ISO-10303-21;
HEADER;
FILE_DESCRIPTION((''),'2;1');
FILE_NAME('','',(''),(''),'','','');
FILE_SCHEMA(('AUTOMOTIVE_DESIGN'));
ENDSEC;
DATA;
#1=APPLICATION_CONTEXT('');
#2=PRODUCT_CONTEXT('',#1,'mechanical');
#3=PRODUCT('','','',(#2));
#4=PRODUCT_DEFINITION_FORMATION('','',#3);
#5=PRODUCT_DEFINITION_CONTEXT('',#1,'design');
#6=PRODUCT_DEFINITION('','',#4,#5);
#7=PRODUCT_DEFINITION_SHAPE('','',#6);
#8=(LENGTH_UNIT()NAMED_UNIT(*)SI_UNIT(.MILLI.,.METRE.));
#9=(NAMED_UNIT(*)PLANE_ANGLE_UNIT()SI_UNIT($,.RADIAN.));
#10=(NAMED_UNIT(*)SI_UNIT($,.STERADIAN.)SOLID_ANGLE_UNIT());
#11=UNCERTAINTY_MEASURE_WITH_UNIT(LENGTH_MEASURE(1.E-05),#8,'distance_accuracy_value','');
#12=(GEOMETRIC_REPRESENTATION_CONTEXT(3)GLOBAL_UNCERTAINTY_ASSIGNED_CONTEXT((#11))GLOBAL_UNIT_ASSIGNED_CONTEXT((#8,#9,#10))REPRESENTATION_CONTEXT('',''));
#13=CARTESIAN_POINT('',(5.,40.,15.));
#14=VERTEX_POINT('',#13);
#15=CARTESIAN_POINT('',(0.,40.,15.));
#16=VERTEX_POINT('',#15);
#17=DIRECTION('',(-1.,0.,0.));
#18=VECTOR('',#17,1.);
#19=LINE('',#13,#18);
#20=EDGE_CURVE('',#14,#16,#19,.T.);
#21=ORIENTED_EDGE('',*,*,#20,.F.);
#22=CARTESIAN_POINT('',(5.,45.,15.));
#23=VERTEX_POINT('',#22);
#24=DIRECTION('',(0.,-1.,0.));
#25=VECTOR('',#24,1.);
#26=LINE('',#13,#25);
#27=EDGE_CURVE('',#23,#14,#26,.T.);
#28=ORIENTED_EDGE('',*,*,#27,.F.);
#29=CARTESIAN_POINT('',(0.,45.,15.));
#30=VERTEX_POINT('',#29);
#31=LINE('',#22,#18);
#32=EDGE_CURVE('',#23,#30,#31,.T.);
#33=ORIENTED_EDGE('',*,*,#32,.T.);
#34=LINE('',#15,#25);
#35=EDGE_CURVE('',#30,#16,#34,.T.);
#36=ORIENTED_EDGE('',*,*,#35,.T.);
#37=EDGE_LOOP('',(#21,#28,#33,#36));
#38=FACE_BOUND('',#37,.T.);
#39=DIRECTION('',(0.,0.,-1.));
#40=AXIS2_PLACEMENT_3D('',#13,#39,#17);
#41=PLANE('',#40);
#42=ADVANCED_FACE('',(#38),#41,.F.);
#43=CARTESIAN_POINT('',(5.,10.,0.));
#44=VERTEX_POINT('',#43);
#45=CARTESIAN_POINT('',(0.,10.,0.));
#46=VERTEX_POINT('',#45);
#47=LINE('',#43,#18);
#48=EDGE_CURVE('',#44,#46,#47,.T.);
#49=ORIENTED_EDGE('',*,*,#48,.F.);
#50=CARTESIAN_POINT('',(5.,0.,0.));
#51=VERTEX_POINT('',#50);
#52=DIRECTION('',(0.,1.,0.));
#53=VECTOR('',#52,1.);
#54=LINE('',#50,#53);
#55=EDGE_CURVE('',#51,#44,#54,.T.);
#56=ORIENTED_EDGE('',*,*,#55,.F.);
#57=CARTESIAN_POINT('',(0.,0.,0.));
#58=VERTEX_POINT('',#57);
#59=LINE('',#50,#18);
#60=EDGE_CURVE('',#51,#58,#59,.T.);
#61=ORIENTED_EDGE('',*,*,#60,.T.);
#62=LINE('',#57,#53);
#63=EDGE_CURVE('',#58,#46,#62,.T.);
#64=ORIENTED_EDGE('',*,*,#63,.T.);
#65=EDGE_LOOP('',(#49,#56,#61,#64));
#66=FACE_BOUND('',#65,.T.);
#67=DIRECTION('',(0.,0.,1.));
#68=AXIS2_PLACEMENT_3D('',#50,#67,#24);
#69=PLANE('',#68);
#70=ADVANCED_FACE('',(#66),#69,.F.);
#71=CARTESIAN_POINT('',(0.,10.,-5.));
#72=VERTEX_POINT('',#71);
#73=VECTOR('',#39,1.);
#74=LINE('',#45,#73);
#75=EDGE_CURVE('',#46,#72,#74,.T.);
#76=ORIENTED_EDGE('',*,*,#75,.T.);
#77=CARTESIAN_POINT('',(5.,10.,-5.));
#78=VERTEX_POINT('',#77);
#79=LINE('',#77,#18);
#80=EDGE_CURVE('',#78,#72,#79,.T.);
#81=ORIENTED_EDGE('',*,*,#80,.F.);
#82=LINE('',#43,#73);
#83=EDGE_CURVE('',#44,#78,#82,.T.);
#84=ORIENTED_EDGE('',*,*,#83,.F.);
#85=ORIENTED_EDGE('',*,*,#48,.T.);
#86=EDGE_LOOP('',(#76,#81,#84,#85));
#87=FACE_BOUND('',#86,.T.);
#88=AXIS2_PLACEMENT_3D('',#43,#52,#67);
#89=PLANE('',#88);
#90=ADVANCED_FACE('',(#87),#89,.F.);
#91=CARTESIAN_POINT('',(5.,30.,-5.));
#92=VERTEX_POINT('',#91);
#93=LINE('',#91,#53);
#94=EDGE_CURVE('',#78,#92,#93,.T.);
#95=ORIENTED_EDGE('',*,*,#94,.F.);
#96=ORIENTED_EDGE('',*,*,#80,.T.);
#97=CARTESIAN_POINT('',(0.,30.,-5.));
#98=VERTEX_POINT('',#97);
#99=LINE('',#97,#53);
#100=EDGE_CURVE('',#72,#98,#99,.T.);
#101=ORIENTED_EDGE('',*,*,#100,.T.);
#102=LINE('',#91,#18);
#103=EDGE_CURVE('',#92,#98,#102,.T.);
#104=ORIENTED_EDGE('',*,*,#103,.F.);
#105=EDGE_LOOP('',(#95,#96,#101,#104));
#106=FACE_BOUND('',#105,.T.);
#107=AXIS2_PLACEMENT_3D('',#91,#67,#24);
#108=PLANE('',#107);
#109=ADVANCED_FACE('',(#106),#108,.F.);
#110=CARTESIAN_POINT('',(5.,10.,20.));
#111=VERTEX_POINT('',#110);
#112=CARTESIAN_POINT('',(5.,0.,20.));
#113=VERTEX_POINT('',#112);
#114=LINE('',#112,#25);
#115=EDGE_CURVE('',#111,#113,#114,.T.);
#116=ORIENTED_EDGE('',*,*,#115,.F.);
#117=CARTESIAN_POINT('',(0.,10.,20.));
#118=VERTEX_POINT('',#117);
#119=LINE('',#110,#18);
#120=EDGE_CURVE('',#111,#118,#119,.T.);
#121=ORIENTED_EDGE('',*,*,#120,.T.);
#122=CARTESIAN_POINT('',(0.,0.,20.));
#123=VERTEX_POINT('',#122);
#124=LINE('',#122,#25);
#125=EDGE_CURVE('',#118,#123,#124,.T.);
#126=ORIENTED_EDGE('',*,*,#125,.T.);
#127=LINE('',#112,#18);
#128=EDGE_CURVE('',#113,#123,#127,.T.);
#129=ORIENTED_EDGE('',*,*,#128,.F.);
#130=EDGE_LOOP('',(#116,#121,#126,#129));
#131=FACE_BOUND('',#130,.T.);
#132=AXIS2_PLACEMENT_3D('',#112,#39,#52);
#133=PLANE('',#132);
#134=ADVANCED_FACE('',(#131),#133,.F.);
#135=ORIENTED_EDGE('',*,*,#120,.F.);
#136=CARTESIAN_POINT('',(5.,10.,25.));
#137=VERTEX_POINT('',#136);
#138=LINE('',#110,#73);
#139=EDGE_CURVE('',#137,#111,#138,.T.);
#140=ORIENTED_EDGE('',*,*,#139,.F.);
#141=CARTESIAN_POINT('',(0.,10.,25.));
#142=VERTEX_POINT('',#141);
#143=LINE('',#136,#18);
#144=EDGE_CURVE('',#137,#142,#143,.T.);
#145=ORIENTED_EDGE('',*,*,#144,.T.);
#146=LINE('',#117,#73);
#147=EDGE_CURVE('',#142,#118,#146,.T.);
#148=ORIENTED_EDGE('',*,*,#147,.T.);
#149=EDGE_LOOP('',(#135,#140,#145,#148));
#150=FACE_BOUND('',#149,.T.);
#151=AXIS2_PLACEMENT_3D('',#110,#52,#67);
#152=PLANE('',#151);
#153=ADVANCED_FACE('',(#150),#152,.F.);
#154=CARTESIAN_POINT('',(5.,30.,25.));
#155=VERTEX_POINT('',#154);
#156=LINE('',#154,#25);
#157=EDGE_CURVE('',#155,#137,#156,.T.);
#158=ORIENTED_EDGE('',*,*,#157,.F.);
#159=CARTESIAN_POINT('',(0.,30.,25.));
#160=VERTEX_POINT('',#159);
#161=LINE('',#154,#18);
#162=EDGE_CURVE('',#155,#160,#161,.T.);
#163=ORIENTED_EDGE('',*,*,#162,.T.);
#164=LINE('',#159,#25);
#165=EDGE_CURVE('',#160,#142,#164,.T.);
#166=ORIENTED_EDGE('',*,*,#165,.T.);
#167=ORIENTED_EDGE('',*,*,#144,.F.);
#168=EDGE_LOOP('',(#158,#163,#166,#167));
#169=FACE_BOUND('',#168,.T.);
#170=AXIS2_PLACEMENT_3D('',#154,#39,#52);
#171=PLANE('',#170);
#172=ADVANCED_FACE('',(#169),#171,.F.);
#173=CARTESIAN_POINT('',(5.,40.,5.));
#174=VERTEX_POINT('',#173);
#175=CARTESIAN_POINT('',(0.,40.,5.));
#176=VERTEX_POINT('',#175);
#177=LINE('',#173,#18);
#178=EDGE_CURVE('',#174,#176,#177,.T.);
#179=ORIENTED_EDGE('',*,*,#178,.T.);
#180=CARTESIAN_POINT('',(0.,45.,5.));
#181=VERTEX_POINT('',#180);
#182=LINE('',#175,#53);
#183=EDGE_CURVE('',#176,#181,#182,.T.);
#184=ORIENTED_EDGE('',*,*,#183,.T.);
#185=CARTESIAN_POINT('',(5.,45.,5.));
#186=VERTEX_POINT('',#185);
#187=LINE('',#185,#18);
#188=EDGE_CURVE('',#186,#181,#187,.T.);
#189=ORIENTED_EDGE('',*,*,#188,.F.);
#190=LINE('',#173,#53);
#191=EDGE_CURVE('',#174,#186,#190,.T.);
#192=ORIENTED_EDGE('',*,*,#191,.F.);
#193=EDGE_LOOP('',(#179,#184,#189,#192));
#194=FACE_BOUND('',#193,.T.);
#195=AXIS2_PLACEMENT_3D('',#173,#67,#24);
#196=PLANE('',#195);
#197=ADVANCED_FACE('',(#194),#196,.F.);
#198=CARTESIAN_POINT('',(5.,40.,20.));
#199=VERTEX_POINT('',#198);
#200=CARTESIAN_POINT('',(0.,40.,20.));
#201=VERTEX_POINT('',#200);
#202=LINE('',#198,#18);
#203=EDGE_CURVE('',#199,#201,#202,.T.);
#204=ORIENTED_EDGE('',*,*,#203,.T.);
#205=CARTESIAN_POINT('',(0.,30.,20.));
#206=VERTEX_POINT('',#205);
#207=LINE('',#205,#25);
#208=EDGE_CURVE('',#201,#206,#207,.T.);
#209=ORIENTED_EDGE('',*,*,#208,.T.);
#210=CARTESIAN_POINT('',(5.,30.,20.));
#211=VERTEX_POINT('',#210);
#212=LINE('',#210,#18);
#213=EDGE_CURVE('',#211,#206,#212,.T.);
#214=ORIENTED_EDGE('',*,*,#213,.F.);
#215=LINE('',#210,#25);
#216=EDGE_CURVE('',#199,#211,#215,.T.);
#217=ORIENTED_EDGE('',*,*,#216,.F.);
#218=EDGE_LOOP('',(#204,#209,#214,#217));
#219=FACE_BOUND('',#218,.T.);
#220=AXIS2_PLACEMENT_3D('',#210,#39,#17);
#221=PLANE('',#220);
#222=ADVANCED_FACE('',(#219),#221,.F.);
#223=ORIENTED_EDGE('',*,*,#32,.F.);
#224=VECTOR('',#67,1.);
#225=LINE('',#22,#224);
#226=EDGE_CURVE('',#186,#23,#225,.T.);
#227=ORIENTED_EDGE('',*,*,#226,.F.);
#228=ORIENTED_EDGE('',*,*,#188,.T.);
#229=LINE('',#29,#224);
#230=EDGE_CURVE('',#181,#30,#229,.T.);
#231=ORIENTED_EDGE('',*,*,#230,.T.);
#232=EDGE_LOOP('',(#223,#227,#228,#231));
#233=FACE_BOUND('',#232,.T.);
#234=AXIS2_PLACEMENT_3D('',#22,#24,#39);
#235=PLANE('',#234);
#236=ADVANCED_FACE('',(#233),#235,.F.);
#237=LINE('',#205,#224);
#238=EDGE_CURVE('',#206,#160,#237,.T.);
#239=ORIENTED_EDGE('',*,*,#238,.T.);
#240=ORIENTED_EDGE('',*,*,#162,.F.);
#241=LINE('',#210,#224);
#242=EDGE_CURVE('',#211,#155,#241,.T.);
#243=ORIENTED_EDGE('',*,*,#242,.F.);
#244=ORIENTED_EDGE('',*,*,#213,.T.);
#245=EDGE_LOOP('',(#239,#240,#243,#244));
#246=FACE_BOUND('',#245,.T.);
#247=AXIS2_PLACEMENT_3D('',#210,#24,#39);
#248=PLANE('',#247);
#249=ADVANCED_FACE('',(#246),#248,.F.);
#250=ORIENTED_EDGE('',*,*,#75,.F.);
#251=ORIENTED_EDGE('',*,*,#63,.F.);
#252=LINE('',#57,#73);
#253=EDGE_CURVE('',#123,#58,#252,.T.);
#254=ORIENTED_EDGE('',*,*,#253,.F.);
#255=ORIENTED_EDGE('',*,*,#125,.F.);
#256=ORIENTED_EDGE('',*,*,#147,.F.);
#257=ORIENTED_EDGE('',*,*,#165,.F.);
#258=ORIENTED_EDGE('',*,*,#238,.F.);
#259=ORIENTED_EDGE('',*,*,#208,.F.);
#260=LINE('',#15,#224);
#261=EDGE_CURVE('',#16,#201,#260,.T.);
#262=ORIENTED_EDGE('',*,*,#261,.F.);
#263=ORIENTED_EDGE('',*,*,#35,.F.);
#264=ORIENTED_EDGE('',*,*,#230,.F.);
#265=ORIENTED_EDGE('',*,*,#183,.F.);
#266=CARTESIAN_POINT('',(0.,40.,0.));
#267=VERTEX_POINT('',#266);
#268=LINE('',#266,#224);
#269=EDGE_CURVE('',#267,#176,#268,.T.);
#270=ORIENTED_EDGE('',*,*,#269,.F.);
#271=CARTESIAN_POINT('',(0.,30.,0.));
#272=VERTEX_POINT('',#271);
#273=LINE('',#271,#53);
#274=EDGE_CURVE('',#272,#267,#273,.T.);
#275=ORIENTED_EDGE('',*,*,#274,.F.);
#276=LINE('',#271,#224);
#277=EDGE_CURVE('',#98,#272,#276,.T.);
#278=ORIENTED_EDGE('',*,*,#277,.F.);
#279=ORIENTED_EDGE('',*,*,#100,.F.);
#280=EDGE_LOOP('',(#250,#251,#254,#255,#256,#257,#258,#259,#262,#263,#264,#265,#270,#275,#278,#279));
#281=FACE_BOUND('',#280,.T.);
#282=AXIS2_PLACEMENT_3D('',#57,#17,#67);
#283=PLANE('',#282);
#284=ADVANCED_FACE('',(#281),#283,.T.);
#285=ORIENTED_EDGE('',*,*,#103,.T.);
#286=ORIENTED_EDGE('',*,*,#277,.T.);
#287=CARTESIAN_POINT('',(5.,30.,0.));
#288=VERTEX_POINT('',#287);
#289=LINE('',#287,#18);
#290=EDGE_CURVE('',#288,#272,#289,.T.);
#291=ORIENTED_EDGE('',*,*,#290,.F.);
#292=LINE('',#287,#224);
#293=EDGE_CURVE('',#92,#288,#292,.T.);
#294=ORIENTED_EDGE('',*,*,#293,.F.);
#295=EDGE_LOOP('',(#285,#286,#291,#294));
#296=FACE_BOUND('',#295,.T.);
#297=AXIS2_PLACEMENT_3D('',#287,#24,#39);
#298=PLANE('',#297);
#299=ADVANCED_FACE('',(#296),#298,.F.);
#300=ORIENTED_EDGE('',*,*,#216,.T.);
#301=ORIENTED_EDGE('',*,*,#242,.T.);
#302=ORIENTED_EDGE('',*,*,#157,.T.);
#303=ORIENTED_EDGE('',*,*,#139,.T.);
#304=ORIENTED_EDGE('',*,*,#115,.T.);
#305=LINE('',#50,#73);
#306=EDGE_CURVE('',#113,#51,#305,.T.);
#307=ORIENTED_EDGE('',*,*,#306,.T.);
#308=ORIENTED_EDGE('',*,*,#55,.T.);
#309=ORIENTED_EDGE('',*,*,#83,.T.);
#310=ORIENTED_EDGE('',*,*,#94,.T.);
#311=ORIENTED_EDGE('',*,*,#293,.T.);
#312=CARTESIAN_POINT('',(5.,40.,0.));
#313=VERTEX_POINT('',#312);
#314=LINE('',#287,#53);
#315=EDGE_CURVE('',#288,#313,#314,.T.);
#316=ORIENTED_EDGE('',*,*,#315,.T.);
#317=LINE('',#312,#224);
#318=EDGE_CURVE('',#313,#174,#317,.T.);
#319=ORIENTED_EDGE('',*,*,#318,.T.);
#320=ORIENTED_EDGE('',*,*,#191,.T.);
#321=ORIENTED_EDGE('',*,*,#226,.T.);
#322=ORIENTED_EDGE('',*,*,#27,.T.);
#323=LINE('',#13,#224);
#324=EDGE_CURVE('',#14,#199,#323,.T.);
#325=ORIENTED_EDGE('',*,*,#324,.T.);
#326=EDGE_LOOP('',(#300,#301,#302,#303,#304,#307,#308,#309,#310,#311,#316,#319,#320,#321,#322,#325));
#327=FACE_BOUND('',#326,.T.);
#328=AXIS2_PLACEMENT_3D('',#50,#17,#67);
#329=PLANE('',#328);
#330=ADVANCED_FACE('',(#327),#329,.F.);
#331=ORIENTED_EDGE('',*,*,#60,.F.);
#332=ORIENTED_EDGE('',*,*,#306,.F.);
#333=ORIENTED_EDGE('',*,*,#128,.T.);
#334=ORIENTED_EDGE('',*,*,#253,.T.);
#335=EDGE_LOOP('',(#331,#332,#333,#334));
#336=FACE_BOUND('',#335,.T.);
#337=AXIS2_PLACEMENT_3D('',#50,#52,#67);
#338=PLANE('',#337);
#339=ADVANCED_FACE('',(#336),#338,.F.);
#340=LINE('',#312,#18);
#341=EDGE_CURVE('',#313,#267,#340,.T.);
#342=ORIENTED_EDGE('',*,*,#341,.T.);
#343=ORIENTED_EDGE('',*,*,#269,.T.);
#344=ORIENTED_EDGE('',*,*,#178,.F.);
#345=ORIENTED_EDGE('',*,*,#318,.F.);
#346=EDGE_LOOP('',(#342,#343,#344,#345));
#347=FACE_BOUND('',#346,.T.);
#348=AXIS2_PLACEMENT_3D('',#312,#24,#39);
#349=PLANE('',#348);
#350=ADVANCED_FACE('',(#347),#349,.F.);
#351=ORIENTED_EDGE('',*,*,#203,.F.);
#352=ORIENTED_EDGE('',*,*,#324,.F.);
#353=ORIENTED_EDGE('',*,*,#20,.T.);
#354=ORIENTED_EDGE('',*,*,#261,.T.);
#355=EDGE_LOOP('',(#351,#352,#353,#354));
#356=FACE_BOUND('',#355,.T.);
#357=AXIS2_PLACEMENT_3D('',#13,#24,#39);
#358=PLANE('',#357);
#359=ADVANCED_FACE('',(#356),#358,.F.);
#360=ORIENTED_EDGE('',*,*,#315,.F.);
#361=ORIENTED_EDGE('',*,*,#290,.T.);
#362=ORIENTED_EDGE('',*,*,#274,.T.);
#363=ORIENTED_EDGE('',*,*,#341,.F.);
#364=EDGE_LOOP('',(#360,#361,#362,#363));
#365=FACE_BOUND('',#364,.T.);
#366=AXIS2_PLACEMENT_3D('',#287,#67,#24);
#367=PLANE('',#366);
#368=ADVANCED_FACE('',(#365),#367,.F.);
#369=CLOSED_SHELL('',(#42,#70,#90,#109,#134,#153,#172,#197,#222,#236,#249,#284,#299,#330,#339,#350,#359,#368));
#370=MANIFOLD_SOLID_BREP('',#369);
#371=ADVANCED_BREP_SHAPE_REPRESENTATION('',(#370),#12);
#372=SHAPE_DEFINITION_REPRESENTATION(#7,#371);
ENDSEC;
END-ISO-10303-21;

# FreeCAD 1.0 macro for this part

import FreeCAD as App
import Part
import Sketcher

V = App.Vector

doc = App.newDocument("Part")
params = doc.addObject("Spreadsheet::Sheet", "Params")
for row, (alias, value) in enumerate([
    ("sketch1_width", "10 mm"),
    ("sketch1_width2", "20 mm"),
    ("pad1_length", "5 mm"),
], start=1):
    params.set(f"A{row}", alias)
    params.set(f"B{row}", "=" + value)
    params.setAlias(f"B{row}", alias)

body = doc.addObject("PartDesign::Body", "Body")

# Sketch on YZ plane
sketch1 = doc.addObject("Sketcher::SketchObject", "Sketch")
body.addObject(sketch1)
sketch1.AttachmentSupport = (doc.YZ_Plane, [""])
sketch1.MapMode = "FlatFace"
sketch1.addGeometry(Part.LineSegment(V(40, 15, 0), V(40, 20, 0)), False)
sketch1.addGeometry(Part.LineSegment(V(40, 20, 0), V(30, 20, 0)), False)
sketch1.addGeometry(Part.LineSegment(V(30, 20, 0), V(30, 25, 0)), False)
sketch1.addGeometry(Part.LineSegment(V(30, 25, 0), V(10, 25, 0)), False)
sketch1.addGeometry(Part.LineSegment(V(10, 25, 0), V(10, 20, 0)), False)
sketch1.addGeometry(Part.LineSegment(V(10, 20, 0), V(0, 20, 0)), False)
sketch1.addGeometry(Part.LineSegment(V(0, 20, 0), V(0, 0, 0)), False)
sketch1.addGeometry(Part.LineSegment(V(0, 0, 0), V(10, 0, 0)), False)
sketch1.addGeometry(Part.LineSegment(V(10, 0, 0), V(10, -5, 0)), False)
sketch1.addGeometry(Part.LineSegment(V(10, -5, 0), V(30, -5, 0)), False)
sketch1.addGeometry(Part.LineSegment(V(30, -5, 0), V(30, 0, 0)), False)
sketch1.addGeometry(Part.LineSegment(V(30, 0, 0), V(40, 0, 0)), False)
sketch1.addGeometry(Part.LineSegment(V(40, 0, 0), V(40, 5, 0)), False)
sketch1.addGeometry(Part.LineSegment(V(40, 5, 0), V(45, 5, 0)), False)
sketch1.addGeometry(Part.LineSegment(V(45, 5, 0), V(45, 15, 0)), False)
sketch1.addGeometry(Part.LineSegment(V(45, 15, 0), V(40, 15, 0)), False)
sketch1.addConstraint(Sketcher.Constraint("Coincident", 0, 2, 1, 1))
sketch1.addConstraint(Sketcher.Constraint("Coincident", 1, 2, 2, 1))
sketch1.addConstraint(Sketcher.Constraint("Coincident", 2, 2, 3, 1))
sketch1.addConstraint(Sketcher.Constraint("Coincident", 3, 2, 4, 1))
sketch1.addConstraint(Sketcher.Constraint("Coincident", 4, 2, 5, 1))
sketch1.addConstraint(Sketcher.Constraint("Coincident", 5, 2, 6, 1))
sketch1.addConstraint(Sketcher.Constraint("Coincident", 6, 2, 7, 1))
sketch1.addConstraint(Sketcher.Constraint("Coincident", 7, 2, 8, 1))
sketch1.addConstraint(Sketcher.Constraint("Coincident", 8, 2, 9, 1))
sketch1.addConstraint(Sketcher.Constraint("Coincident", 9, 2, 10, 1))
sketch1.addConstraint(Sketcher.Constraint("Coincident", 10, 2, 11, 1))
sketch1.addConstraint(Sketcher.Constraint("Coincident", 11, 2, 12, 1))
sketch1.addConstraint(Sketcher.Constraint("Coincident", 12, 2, 13, 1))
sketch1.addConstraint(Sketcher.Constraint("Coincident", 13, 2, 14, 1))
sketch1.addConstraint(Sketcher.Constraint("Coincident", 14, 2, 15, 1))
sketch1.addConstraint(Sketcher.Constraint("Coincident", 15, 2, 0, 1))
sketch1.addConstraint(Sketcher.Constraint("Vertical", 0))
sketch1.addConstraint(Sketcher.Constraint("Horizontal", 1))
sketch1.addConstraint(Sketcher.Constraint("Vertical", 2))
sketch1.addConstraint(Sketcher.Constraint("Horizontal", 3))
sketch1.addConstraint(Sketcher.Constraint("Vertical", 4))
sketch1.addConstraint(Sketcher.Constraint("Horizontal", 5))
sketch1.addConstraint(Sketcher.Constraint("Vertical", 6))
sketch1.addConstraint(Sketcher.Constraint("Horizontal", 7))
sketch1.addConstraint(Sketcher.Constraint("Vertical", 8))
sketch1.addConstraint(Sketcher.Constraint("Horizontal", 9))
sketch1.addConstraint(Sketcher.Constraint("Vertical", 10))
sketch1.addConstraint(Sketcher.Constraint("Horizontal", 11))
sketch1.addConstraint(Sketcher.Constraint("Vertical", 12))
sketch1.addConstraint(Sketcher.Constraint("Horizontal", 13))
sketch1.addConstraint(Sketcher.Constraint("Vertical", 14))
sketch1.addConstraint(Sketcher.Constraint("Horizontal", 15))
sketch1.addConstraint(Sketcher.Constraint("Coincident", 6, 2, -1, 1))
sketch1.addConstraint(Sketcher.Constraint("PointOnObject", 10, 2, -1))
sketch1.addConstraint(Sketcher.Constraint("Horizontal", 1, 2, 4, 2))
sketch1.addConstraint(Sketcher.Constraint("Vertical", 4, 2, 7, 2))
sketch1.addConstraint(Sketcher.Constraint("Vertical", 2, 2, 9, 2))
sketch1.addConstraint(Sketcher.Constraint("Vertical", 0, 2, 11, 2))
sketch1.addConstraint(Sketcher.Constraint("Equal", 1, 5))
sketch1.addConstraint(Sketcher.Constraint("Equal", 15, 0))
sketch1.addConstraint(Sketcher.Constraint("Equal", 0, 2))
sketch1.addConstraint(Sketcher.Constraint("Equal", 9, 6))
sketch1.addConstraint(Sketcher.Constraint("Equal", 4, 8))
sketch1.addConstraint(Sketcher.Constraint("Equal", 10, 12))
sketch1.addConstraint(Sketcher.Constraint("Equal", 11, 14))
sketch1.addConstraint(Sketcher.Constraint("DistanceX", 1, 2, 1, 1, 10.0))
sketch1.addConstraint(Sketcher.Constraint("DistanceX", 3, 2, 3, 1, 20.0))
sketch1.setExpression("Constraints[45]", "Params.sketch1_width")
sketch1.setExpression("Constraints[46]", "Params.sketch1_width2")
pad1 = doc.addObject("PartDesign::Pad", "Pad")
body.addObject(pad1)
pad1.Profile = sketch1
pad1.setExpression("Length", "Params.pad1_length")

doc.recompute()
